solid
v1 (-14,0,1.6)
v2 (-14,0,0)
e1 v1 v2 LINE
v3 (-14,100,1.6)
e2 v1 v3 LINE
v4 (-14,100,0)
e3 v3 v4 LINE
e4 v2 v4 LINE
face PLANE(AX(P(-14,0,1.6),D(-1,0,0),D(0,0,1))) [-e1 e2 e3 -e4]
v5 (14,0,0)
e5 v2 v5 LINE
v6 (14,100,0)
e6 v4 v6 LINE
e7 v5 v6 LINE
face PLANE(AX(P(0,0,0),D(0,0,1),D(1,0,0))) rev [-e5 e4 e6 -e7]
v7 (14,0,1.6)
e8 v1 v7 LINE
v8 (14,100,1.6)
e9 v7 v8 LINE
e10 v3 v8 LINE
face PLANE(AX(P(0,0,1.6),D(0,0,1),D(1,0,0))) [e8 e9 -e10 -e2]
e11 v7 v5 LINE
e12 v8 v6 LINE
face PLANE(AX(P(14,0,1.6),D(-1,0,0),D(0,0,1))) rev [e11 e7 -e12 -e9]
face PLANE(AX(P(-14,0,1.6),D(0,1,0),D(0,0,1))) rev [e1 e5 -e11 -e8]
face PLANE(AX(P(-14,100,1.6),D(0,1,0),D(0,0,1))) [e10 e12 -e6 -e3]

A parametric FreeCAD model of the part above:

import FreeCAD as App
import Part
import Sketcher

V = App.Vector
Q = App.Units.Quantity


def add_polygon(sketch, points):
    """Adds a closed chain of lines whose ends are joined by coincident constraints."""
    first, n = sketch.GeometryCount, len(points)
    for a, b in zip(points, points[1:] + points[:1]):
        sketch.addGeometry(Part.LineSegment(App.Vector(*a, 0), App.Vector(*b, 0)), False)
    for i in range(n):
        sketch.addConstraint(Sketcher.Constraint("Coincident", first + i, 2, first + (i + 1) % n, 1))

doc = App.newDocument("Part")
body = doc.addObject("PartDesign::Body", "Body")

sketch1 = body.newObject("Sketcher::SketchObject", "Sketch")
sketch1.AttachmentSupport = (doc.getObject("XY_Plane"), [""])
sketch1.MapMode = "FlatFace"
add_polygon(sketch1, [(-14, 100), (-14, 0), (14, 0), (14, 100)])
sketch1.addConstraint([
    Sketcher.Constraint("Vertical", 0),
    Sketcher.Constraint("Horizontal", 1),
    Sketcher.Constraint("Vertical", 2),
    Sketcher.Constraint("Horizontal", 3),
    Sketcher.Constraint("Symmetric", 0, 2, 1, 2, -1, 1),
    Sketcher.Constraint("DistanceX", 1, 1, 1, 2, Q("28 mm")),
    Sketcher.Constraint("DistanceY", 0, 2, 0, 1, Q("100 mm")),
])
pad1 = body.newObject("PartDesign::Pad", "Pad")
pad1.Profile = sketch1
pad1.Length = 1.6

doc.recompute()
